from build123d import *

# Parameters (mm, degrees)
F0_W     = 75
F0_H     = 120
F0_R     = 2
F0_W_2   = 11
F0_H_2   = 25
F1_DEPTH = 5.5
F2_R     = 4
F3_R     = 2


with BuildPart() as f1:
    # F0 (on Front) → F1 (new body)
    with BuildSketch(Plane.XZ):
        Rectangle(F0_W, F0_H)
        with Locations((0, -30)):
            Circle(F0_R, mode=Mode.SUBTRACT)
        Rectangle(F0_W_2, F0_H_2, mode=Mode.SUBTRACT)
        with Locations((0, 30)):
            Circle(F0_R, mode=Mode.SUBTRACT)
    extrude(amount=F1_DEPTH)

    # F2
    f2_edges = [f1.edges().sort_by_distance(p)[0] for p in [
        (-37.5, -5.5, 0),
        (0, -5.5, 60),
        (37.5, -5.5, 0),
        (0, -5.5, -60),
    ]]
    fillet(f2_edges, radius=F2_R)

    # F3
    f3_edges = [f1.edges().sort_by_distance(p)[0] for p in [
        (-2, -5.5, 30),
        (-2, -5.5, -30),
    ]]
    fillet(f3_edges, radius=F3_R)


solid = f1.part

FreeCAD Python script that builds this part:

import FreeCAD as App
import Part
import Sketcher
from FreeCAD import Vector


def edges_at(feature, points):
    """Names of the edges that pass closest to the given points."""
    edges = feature.Shape.Edges
    near = lambda p: min(range(len(edges)), key=lambda i: edges[i].distToShape(Part.Vertex(*p))[0])
    return sorted({f"Edge{near(p) + 1}" for p in points})

doc = App.newDocument("Part")
body = doc.addObject("PartDesign::Body", "Body")

# Sketch on XZ plane
sketch1 = body.newObject("Sketcher::SketchObject", "Sketch")
sketch1.AttachmentSupport = (doc.getObject("XZ_Plane"), [""])
sketch1.MapMode = "FlatFace"
sketch1.addGeometry([
    Part.LineSegment(Vector(-37.5, 60, 0), Vector(-37.5, -60, 0)),  # 0
    Part.LineSegment(Vector(-37.5, -60, 0), Vector(37.5, -60, 0)),  # 1
    Part.LineSegment(Vector(37.5, -60, 0), Vector(37.5, 60, 0)),  # 2
    Part.LineSegment(Vector(37.5, 60, 0), Vector(-37.5, 60, 0)),  # 3
    Part.Circle(Vector(0, -30, 0), Vector(0, 0, 1), 2),  # 4
    Part.LineSegment(Vector(5.5, -12.5, 0), Vector(-5.5, -12.5, 0)),  # 5
    Part.LineSegment(Vector(-5.5, -12.5, 0), Vector(-5.5, 12.5, 0)),  # 6
    Part.LineSegment(Vector(-5.5, 12.5, 0), Vector(5.5, 12.5, 0)),  # 7
    Part.LineSegment(Vector(5.5, 12.5, 0), Vector(5.5, -12.5, 0)),  # 8
    Part.Circle(Vector(0, 30, 0), Vector(0, 0, 1), 2),  # 9
], False)
sketch1.addConstraint([
    Sketcher.Constraint("Coincident", 0, 2, 1, 1),
    Sketcher.Constraint("Coincident", 1, 2, 2, 1),
    Sketcher.Constraint("Coincident", 2, 2, 3, 1),
    Sketcher.Constraint("Coincident", 3, 2, 0, 1),
    Sketcher.Constraint("Coincident", 5, 2, 6, 1),
    Sketcher.Constraint("Coincident", 6, 2, 7, 1),
    Sketcher.Constraint("Coincident", 7, 2, 8, 1),
    Sketcher.Constraint("Coincident", 8, 2, 5, 1),
    Sketcher.Constraint("Vertical", 0),
    Sketcher.Constraint("Horizontal", 1),
    Sketcher.Constraint("Vertical", 2),
    Sketcher.Constraint("Horizontal", 3),
    Sketcher.Constraint("Horizontal", 5),
    Sketcher.Constraint("Vertical", 6),
    Sketcher.Constraint("Horizontal", 7),
    Sketcher.Constraint("Vertical", 8),
    Sketcher.Constraint("Equal", 4, 9),
    Sketcher.Constraint("Symmetric", 4, 3, 9, 3, -1, 1),
    Sketcher.Constraint("Symmetric", 0, 2, 2, 2, -1, 1),
    Sketcher.Constraint("Symmetric", 5, 2, 7, 2, -1, 1),
    Sketcher.Constraint("PointOnObject", 4, 3, -2),
    Sketcher.Constraint("Diameter", 4, 4.0),
    Sketcher.Constraint("DistanceX", 1, 1, 1, 2, 75.0),
    Sketcher.Constraint("DistanceX", 5, 2, 5, 1, 11.0),
    Sketcher.Constraint("DistanceY", 0, 2, 0, 1, 120.0),
    Sketcher.Constraint("DistanceY", 6, 1, 6, 2, 25.0),
    Sketcher.Constraint("DistanceY", 4, 3, -1, 1, 30.0),
])
pad1 = body.newObject("PartDesign::Pad", "Pad")
pad1.Profile = sketch1
pad1.Length = 5.5
doc.recompute()

fillet = body.newObject("PartDesign::Fillet", "Fillet")
fillet.Base = (pad1, edges_at(pad1, [
    (-37.5, -5.5, 0),
    (0, -5.5, 60),
    (37.5, -5.5, 0),
    (0, -5.5, -60),
]))
fillet.Radius = 4
doc.recompute()

fillet2 = body.newObject("PartDesign::Fillet", "Fillet001")
fillet2.Base = (fillet, edges_at(fillet, [(-2, -5.5, 30), (-2, -5.5, -30)]))
fillet2.Radius = 2

doc.recompute()
